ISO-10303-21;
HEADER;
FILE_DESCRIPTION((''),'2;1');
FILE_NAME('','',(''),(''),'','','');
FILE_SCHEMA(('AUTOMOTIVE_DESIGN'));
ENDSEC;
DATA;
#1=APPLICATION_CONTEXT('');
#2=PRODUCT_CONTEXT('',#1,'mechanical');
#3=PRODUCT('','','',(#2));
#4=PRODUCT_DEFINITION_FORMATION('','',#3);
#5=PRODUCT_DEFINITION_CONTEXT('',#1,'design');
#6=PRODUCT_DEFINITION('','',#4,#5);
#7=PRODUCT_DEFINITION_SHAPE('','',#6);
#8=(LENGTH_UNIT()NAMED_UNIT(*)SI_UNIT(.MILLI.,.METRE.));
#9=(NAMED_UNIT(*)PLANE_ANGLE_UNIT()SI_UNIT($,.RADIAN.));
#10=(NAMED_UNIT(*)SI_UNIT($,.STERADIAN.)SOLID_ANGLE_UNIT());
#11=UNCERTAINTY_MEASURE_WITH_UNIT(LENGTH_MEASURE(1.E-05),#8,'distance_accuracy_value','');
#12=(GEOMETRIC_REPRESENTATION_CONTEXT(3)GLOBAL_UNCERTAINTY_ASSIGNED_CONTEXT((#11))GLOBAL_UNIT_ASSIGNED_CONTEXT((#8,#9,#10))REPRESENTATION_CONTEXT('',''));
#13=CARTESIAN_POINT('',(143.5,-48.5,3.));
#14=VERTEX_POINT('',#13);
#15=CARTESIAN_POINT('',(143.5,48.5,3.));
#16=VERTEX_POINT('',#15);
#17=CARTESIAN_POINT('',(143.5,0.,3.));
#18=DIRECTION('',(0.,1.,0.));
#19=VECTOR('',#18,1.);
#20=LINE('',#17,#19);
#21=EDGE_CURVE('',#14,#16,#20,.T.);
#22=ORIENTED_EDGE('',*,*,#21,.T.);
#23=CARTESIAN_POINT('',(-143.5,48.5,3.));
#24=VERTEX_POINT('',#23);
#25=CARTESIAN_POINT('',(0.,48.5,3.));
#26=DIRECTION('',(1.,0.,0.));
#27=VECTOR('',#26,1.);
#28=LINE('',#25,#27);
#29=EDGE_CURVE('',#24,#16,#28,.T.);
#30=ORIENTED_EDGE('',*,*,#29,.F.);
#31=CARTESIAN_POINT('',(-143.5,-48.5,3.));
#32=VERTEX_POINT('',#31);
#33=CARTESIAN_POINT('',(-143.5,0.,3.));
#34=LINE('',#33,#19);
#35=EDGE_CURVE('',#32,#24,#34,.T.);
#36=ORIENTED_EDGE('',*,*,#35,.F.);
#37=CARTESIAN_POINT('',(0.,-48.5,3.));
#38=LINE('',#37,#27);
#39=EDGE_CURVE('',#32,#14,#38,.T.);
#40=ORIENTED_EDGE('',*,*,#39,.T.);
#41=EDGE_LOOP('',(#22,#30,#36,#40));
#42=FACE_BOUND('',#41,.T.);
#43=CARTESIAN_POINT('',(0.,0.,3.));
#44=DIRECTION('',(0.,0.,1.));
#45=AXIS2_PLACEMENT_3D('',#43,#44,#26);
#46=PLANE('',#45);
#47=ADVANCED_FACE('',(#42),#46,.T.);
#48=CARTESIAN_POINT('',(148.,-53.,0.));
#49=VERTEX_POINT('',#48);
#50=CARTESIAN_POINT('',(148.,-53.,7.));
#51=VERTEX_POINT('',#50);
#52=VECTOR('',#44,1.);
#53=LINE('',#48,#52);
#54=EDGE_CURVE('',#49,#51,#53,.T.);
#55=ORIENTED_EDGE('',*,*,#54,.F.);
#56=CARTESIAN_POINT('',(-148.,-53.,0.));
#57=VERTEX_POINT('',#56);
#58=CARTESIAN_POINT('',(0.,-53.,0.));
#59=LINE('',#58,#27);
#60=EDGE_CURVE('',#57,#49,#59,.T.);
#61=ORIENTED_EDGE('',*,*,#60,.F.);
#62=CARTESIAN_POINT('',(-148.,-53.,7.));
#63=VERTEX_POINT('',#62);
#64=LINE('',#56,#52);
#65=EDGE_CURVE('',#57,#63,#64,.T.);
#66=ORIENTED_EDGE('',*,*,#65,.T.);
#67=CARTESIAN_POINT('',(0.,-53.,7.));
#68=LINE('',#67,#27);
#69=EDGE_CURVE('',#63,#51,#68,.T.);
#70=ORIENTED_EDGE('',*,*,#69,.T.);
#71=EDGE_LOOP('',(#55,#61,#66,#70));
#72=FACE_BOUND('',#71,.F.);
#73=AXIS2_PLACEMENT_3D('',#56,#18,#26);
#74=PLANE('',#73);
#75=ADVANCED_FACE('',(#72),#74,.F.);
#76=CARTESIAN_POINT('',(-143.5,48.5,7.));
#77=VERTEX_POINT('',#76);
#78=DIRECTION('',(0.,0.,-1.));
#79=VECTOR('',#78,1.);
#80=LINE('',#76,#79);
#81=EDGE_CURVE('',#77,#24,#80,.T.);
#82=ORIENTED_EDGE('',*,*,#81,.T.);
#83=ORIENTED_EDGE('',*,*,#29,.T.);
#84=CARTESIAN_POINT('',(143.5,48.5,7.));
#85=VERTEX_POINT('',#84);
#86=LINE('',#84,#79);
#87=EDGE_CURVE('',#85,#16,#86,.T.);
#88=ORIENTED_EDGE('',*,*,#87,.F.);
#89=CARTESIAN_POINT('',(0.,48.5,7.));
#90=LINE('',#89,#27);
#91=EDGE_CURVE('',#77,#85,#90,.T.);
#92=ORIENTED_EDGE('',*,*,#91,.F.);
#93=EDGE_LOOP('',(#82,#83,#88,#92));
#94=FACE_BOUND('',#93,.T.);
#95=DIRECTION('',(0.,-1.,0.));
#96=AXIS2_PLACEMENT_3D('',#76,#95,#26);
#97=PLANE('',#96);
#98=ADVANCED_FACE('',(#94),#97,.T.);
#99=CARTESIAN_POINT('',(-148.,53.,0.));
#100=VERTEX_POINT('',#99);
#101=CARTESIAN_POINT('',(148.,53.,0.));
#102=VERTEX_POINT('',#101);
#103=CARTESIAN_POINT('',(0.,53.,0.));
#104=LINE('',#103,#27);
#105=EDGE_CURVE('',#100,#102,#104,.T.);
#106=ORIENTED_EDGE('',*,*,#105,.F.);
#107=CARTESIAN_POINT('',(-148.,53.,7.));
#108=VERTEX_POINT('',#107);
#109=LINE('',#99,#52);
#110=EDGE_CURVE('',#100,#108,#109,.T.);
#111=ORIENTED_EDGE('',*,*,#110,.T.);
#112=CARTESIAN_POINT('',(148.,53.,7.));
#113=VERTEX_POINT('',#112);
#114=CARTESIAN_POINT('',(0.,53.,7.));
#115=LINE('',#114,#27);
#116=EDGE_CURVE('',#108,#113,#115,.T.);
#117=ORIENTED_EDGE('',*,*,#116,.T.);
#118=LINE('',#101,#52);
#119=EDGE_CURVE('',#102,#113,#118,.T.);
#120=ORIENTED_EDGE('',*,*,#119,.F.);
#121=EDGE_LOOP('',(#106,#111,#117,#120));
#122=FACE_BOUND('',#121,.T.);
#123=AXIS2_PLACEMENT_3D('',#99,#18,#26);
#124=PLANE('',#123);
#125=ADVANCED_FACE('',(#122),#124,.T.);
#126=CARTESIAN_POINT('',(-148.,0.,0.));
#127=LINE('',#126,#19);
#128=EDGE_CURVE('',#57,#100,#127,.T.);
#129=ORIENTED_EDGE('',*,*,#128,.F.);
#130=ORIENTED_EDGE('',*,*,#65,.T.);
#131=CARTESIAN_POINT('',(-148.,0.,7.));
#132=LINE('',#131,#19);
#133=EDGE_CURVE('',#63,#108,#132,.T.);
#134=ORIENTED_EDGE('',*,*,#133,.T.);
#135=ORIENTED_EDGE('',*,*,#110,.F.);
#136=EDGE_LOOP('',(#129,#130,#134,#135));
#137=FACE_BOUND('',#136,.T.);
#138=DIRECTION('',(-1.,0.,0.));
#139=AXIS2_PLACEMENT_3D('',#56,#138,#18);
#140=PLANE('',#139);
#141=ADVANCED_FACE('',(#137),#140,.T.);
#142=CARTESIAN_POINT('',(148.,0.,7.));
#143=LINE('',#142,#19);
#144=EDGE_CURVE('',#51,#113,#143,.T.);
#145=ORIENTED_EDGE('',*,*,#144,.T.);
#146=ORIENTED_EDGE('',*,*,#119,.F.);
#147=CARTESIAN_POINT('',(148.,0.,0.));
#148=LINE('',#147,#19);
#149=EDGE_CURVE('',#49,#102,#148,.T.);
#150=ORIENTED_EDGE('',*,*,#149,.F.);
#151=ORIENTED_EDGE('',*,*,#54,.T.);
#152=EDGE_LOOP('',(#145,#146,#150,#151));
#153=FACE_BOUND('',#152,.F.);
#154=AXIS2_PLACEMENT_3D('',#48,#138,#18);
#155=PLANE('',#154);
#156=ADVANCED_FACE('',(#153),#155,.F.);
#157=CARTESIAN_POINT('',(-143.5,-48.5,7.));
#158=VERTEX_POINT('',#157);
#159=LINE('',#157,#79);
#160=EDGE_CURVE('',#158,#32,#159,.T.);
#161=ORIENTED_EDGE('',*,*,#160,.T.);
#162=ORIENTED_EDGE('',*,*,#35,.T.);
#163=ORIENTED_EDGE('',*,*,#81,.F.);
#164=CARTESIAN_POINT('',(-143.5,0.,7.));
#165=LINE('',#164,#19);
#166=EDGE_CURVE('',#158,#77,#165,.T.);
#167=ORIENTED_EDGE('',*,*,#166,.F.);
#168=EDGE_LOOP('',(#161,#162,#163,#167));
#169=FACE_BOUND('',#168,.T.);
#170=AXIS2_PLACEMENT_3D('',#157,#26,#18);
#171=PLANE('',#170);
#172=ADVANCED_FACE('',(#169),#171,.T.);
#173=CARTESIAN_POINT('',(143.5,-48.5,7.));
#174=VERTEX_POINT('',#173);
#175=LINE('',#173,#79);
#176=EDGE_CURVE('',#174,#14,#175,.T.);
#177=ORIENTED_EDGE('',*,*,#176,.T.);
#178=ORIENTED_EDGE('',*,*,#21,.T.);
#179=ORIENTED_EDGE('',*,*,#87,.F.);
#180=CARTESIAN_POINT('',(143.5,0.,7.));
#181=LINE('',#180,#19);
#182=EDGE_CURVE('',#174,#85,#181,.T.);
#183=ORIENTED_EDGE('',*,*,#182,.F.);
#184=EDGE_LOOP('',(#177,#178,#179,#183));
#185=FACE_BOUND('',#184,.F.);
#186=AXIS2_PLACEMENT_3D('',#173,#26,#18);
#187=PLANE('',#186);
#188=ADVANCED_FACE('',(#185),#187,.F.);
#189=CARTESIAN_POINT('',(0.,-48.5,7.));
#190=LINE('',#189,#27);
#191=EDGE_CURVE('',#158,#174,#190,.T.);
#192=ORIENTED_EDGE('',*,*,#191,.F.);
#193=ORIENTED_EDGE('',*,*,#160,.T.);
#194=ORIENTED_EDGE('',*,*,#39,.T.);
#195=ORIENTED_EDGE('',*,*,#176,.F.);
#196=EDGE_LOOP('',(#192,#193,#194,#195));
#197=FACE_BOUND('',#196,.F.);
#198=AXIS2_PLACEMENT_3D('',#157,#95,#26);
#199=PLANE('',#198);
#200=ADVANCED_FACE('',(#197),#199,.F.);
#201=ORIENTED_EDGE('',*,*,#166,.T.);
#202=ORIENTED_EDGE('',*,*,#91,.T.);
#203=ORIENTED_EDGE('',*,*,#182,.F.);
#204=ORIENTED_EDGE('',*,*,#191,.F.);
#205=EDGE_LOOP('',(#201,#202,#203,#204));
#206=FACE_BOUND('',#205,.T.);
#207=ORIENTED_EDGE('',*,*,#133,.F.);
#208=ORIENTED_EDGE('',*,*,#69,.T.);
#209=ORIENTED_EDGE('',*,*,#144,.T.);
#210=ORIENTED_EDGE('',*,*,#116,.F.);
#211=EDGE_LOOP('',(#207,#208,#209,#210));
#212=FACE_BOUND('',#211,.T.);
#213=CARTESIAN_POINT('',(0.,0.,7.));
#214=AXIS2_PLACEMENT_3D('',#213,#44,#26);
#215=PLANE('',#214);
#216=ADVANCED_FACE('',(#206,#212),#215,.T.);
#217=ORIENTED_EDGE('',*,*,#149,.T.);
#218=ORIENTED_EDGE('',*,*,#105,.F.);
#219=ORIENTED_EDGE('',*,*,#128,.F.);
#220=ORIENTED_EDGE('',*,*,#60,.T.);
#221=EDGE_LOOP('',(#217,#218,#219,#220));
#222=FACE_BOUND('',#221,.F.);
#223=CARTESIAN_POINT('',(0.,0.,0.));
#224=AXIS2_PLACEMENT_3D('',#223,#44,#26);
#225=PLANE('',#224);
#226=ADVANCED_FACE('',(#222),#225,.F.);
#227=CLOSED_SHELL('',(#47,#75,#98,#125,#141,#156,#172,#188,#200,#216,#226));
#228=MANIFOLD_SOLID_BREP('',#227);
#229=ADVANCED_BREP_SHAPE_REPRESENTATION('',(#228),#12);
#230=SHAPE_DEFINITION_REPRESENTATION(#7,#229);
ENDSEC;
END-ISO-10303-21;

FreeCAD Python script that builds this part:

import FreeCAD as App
import Part
import Sketcher

V = App.Vector


def add_polygon(sketch, points):
    """Adds a closed chain of lines whose ends are joined by coincident constraints."""
    first, n = sketch.GeometryCount, len(points)
    for a, b in zip(points, points[1:] + points[:1]):
        sketch.addGeometry(Part.LineSegment(App.Vector(*a, 0), App.Vector(*b, 0)), False)
    for i in range(n):
        sketch.addConstraint(Sketcher.Constraint("Coincident", first + i, 2, first + (i + 1) % n, 1))

doc = App.newDocument("Part")
body = doc.addObject("PartDesign::Body", "Body")

# Sketch on XY plane
sketch1 = body.newObject("Sketcher::SketchObject", "Sketch")
sketch1.AttachmentSupport = (doc.getObject("XY_Plane"), [""])
sketch1.MapMode = "FlatFace"
add_polygon(sketch1, [(-148, 53), (-148, -53), (148, -53), (148, 53)])  # lines 0-3
sketch1.addConstraint(Sketcher.Constraint("Vertical", 0))
sketch1.addConstraint(Sketcher.Constraint("Horizontal", 1))
sketch1.addConstraint(Sketcher.Constraint("Vertical", 2))
sketch1.addConstraint(Sketcher.Constraint("Horizontal", 3))
sketch1.addConstraint(Sketcher.Constraint("Symmetric", 0, 2, 2, 2, -1, 1))
sketch1.addConstraint(Sketcher.Constraint("DistanceX", 1, 1, 1, 2, 296.0))
sketch1.addConstraint(Sketcher.Constraint("DistanceY", 0, 2, 0, 1, 106.0))
pad1 = body.newObject("PartDesign::Pad", "Pad")
pad1.Profile = sketch1
pad1.Length = 7

# Sketch on XY plane
sketch2 = body.newObject("Sketcher::SketchObject", "Sketch001")
sketch2.AttachmentSupport = (doc.getObject("XY_Plane"), [""])
sketch2.MapMode = "FlatFace"
sketch2.AttachmentOffset = App.Placement(V(0, 0, 7), App.Rotation())
add_polygon(sketch2, [(-144, 48), (-144, -48), (144, -48), (144, 48)])  # lines 0-3
sketch2.addConstraint(Sketcher.Constraint("Vertical", 0))
sketch2.addConstraint(Sketcher.Constraint("Horizontal", 1))
sketch2.addConstraint(Sketcher.Constraint("Vertical", 2))
sketch2.addConstraint(Sketcher.Constraint("Horizontal", 3))
sketch2.addConstraint(Sketcher.Constraint("Symmetric", 0, 2, 2, 2, -1, 1))
sketch2.addConstraint(Sketcher.Constraint("DistanceX", 1, 1, 1, 2, 287.0))
sketch2.addConstraint(Sketcher.Constraint("DistanceY", 0, 2, 0, 1, 97.0))
pocket1 = body.newObject("PartDesign::Pocket", "Pocket")
pocket1.Profile = sketch2
pocket1.Length = 4

doc.recompute()
